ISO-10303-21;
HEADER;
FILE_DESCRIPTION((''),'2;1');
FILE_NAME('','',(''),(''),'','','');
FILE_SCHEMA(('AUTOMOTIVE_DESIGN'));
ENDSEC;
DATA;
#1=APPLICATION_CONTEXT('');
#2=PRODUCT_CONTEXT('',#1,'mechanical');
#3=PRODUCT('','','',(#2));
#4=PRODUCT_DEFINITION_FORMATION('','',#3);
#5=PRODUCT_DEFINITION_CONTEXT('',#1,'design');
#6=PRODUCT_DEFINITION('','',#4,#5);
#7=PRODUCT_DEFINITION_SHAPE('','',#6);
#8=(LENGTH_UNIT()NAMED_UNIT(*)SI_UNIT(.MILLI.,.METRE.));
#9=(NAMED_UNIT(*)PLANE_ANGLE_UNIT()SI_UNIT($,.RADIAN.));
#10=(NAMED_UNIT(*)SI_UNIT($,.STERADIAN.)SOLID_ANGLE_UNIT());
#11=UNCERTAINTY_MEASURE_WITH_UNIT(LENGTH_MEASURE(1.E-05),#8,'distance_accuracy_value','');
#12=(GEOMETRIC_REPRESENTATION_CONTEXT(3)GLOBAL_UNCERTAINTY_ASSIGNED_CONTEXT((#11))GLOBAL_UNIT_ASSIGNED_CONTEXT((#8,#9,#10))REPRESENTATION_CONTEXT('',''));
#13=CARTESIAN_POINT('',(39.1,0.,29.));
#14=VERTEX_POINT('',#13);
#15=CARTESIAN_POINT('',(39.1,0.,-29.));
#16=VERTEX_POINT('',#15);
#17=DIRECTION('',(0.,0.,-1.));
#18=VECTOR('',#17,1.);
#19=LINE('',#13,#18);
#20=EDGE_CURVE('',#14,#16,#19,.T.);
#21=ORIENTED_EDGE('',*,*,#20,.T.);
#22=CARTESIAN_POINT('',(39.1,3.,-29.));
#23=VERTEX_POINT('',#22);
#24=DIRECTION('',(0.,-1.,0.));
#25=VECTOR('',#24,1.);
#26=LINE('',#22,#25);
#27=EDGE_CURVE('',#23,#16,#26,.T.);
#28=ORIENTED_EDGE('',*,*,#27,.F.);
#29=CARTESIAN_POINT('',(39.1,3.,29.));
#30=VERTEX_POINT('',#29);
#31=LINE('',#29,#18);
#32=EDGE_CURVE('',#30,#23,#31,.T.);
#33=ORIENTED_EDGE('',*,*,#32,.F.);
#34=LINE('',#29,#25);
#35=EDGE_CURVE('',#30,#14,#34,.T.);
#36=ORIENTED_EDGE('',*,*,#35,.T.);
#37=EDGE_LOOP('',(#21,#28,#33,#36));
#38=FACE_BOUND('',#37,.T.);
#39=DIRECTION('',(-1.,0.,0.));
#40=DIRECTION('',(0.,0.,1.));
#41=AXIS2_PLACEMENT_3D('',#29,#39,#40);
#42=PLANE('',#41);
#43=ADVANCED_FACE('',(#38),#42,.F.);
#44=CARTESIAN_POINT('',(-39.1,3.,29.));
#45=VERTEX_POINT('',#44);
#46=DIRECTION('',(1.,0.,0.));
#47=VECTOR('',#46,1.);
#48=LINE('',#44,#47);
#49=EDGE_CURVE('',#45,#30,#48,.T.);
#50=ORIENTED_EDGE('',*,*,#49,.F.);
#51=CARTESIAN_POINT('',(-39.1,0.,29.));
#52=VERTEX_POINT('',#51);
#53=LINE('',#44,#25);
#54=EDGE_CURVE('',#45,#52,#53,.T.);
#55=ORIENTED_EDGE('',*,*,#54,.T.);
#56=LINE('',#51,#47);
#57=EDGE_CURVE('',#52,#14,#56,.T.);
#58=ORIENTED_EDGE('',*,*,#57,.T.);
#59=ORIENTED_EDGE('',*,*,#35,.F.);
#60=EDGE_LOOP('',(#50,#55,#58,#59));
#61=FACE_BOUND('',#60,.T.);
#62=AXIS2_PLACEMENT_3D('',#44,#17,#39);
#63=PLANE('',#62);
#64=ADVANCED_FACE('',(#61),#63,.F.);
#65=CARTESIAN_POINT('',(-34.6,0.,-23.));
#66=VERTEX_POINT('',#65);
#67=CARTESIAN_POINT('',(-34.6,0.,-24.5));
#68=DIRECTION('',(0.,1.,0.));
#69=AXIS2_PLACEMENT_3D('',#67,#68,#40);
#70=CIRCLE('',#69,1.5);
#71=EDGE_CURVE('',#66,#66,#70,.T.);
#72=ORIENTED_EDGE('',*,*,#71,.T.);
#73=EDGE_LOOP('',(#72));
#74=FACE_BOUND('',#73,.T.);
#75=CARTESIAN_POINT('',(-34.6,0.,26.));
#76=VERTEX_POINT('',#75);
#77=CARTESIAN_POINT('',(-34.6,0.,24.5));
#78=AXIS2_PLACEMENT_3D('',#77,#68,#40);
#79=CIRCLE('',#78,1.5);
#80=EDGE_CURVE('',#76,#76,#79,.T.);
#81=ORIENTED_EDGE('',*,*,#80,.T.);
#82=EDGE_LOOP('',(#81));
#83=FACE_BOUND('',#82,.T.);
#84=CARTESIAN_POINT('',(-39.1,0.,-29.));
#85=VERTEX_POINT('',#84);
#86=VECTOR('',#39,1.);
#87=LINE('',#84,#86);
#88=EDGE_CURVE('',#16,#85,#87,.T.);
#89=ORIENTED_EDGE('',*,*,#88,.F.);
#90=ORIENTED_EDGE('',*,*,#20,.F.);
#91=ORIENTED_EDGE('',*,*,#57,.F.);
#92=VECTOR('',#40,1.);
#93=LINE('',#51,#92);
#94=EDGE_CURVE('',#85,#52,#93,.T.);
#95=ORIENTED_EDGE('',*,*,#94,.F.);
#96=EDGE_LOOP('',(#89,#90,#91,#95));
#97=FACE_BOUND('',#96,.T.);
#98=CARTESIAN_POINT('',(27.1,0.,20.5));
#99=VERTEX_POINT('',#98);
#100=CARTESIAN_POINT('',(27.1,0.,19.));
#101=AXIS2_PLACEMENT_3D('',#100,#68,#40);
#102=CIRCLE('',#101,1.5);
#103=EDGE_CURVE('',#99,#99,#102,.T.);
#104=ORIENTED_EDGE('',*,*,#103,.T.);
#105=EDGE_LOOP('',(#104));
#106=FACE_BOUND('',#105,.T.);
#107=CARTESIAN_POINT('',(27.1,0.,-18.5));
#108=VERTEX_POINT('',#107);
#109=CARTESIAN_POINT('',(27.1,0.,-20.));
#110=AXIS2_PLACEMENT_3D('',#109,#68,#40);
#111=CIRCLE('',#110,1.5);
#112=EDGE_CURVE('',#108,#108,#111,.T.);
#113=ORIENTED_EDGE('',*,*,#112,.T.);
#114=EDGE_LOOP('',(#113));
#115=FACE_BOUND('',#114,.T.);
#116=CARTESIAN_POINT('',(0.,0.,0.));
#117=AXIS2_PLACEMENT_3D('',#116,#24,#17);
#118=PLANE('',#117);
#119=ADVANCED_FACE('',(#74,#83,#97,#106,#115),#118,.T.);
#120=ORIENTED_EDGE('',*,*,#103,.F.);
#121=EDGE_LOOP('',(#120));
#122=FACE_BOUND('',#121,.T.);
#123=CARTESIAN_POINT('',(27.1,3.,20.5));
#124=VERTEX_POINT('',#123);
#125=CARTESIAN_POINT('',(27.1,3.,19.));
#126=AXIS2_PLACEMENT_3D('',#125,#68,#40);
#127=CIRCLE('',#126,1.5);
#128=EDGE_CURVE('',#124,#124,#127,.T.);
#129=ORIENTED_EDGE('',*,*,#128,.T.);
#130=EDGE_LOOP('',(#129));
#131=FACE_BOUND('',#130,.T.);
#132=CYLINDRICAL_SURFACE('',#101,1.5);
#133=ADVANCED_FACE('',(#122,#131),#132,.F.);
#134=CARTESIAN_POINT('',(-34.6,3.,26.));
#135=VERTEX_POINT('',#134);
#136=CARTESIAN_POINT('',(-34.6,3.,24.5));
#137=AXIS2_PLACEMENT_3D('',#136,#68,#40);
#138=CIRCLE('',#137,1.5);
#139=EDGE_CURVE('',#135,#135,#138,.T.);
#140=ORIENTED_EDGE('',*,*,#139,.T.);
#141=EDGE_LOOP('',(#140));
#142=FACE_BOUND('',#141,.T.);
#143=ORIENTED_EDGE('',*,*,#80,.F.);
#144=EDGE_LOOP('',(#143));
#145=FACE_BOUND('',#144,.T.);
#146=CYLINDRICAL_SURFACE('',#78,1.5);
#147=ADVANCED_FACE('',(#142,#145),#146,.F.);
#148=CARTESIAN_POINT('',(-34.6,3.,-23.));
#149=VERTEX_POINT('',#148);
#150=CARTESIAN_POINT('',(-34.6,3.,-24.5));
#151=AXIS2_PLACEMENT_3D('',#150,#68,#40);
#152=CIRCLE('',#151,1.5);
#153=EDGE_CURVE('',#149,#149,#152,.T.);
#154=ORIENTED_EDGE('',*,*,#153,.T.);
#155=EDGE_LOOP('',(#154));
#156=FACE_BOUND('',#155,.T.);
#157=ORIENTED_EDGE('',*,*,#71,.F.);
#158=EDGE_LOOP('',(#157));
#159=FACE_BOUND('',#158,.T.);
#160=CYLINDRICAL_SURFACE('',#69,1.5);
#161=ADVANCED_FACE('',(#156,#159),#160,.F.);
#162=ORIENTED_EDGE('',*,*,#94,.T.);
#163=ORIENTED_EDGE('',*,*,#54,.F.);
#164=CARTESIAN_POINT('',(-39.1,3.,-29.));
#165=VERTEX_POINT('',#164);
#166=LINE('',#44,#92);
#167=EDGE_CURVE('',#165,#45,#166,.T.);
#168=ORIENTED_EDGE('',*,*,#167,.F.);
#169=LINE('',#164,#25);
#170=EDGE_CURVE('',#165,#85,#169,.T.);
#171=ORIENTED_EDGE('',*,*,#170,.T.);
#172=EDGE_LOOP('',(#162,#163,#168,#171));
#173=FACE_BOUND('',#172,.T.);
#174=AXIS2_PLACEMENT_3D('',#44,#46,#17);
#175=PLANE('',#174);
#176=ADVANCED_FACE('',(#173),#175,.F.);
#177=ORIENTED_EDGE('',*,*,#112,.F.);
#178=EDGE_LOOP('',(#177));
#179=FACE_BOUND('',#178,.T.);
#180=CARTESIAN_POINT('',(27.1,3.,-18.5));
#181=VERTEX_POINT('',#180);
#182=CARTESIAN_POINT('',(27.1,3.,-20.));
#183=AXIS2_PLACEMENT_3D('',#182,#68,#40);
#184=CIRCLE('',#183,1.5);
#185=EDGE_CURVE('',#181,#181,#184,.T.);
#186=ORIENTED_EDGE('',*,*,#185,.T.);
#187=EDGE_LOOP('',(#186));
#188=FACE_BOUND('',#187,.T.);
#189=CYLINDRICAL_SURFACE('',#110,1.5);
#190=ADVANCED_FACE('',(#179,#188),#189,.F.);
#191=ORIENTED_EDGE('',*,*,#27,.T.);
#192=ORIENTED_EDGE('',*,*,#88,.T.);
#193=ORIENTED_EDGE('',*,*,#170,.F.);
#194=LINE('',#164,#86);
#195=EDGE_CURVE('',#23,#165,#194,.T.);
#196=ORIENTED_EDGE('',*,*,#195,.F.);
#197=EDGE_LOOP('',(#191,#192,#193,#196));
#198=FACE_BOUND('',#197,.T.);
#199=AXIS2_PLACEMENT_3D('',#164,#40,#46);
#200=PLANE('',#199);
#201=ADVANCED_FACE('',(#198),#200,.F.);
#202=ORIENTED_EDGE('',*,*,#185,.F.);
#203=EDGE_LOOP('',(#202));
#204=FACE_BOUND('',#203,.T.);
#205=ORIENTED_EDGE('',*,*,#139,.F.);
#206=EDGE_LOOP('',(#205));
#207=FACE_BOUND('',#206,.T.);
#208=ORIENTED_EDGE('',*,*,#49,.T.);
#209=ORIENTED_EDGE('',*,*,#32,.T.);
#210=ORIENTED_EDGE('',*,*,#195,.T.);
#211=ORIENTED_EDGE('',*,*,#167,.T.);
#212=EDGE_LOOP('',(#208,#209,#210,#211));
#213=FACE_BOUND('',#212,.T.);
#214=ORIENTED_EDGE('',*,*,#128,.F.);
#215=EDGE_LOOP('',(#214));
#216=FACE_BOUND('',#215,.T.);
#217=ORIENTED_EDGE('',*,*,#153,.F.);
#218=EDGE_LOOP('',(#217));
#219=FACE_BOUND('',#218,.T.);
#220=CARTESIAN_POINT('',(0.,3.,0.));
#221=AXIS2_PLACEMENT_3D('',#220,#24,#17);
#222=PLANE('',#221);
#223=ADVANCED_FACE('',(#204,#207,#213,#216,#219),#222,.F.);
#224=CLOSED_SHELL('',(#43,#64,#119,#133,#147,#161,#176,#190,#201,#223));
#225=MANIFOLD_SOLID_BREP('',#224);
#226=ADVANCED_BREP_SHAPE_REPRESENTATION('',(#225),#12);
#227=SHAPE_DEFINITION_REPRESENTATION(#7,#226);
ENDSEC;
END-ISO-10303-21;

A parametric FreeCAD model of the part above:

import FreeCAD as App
import Part
import Sketcher
from FreeCAD import Vector
Q = App.Units.Quantity

doc = App.newDocument("Part")
body = doc.addObject("PartDesign::Body", "Body")

# Sketch on XZ plane
sketch1 = body.newObject("Sketcher::SketchObject", "Sketch")
sketch1.AttachmentSupport = (doc.getObject("XZ_Plane"), [""])
sketch1.MapMode = "FlatFace"
sketch1.addGeometry([
    Part.LineSegment(Vector(-39, -29, 0), Vector(-39, 29, 0)),
    Part.LineSegment(Vector(-39, 29, 0), Vector(39, 29, 0)),
    Part.LineSegment(Vector(39, 29, 0), Vector(39, -29, 0)),
    Part.LineSegment(Vector(39, -29, 0), Vector(-39, -29, 0)),
], False)
sketch1.addConstraint([
    Sketcher.Constraint("Coincident", 0, 2, 1, 1),
    Sketcher.Constraint("Coincident", 1, 2, 2, 1),
    Sketcher.Constraint("Coincident", 2, 2, 3, 1),
    Sketcher.Constraint("Coincident", 3, 2, 0, 1),
    Sketcher.Constraint("Vertical", 0),
    Sketcher.Constraint("Horizontal", 1),
    Sketcher.Constraint("Vertical", 2),
    Sketcher.Constraint("Horizontal", 3),
    Sketcher.Constraint("Symmetric", 0, 2, 2, 2, -1, 1),
    Sketcher.Constraint("DistanceY", 0, 1, 0, 2, Q("58 mm")),
    Sketcher.Constraint("DistanceX", 1, 1, 1, 2, Q("78.2 mm")),
])
pad1 = body.newObject("PartDesign::Pad", "Pad")
pad1.Profile = sketch1
pad1.Length = 3
pad1.Reversed = True

# Sketch on XZ plane
sketch2 = body.newObject("Sketcher::SketchObject", "Sketch001")
sketch2.AttachmentSupport = (doc.getObject("XZ_Plane"), [""])
sketch2.MapMode = "FlatFace"
sketch2.AttachmentOffset = App.Placement(Vector(0, 0, -3), App.Rotation())
sketch2.addGeometry([
    Part.Circle(Vector(-34.6, -24.5, 0), Vector(0, 0, 1), 1.5),
    Part.Circle(Vector(-34.6, 24.5, 0), Vector(0, 0, 1), 1.5),
], False)
sketch2.addConstraint([
    Sketcher.Constraint("Equal", 0, 1),
    Sketcher.Constraint("Symmetric", 0, 3, 1, 3, -1),
    Sketcher.Constraint("Diameter", 0, Q("3 mm")),
    Sketcher.Constraint("DistanceY", 0, 3, 1, 3, Q("49 mm")),
    Sketcher.Constraint("DistanceX", 0, 3, -1, 1, Q("34.6 mm")),
])
pocket1 = body.newObject("PartDesign::Pocket", "Pocket")
pocket1.Profile = sketch2
pocket1.Length = 3
pocket1.Reversed = True

# Sketch on XZ plane
sketch3 = body.newObject("Sketcher::SketchObject", "Sketch002")
sketch3.AttachmentSupport = (doc.getObject("XZ_Plane"), [""])
sketch3.MapMode = "FlatFace"
sketch3.AttachmentOffset = App.Placement(Vector(0, 0, -3), App.Rotation())
sketch3.addGeometry([
    Part.Circle(Vector(27.1, -20, 0), Vector(0, 0, 1), 1.5),
    Part.Circle(Vector(27.1, 19, 0), Vector(0, 0, 1), 1.5),
], False)
sketch3.addConstraint([
    Sketcher.Constraint("Equal", 0, 1),
    Sketcher.Constraint("Vertical", 0, 3, 1, 3),
    Sketcher.Constraint("Diameter", 0, Q("3 mm")),
    Sketcher.Constraint("DistanceY", 0, 3, -1, 1, Q("20 mm")),
    Sketcher.Constraint("DistanceY", -1, 1, 1, 3, Q("19 mm")),
    Sketcher.Constraint("DistanceX", -1, 1, 0, 3, Q("27.1 mm")),
])
pocket2 = body.newObject("PartDesign::Pocket", "Pocket001")
pocket2.Profile = sketch3
pocket2.Length = 3
pocket2.Reversed = True

doc.recompute()
